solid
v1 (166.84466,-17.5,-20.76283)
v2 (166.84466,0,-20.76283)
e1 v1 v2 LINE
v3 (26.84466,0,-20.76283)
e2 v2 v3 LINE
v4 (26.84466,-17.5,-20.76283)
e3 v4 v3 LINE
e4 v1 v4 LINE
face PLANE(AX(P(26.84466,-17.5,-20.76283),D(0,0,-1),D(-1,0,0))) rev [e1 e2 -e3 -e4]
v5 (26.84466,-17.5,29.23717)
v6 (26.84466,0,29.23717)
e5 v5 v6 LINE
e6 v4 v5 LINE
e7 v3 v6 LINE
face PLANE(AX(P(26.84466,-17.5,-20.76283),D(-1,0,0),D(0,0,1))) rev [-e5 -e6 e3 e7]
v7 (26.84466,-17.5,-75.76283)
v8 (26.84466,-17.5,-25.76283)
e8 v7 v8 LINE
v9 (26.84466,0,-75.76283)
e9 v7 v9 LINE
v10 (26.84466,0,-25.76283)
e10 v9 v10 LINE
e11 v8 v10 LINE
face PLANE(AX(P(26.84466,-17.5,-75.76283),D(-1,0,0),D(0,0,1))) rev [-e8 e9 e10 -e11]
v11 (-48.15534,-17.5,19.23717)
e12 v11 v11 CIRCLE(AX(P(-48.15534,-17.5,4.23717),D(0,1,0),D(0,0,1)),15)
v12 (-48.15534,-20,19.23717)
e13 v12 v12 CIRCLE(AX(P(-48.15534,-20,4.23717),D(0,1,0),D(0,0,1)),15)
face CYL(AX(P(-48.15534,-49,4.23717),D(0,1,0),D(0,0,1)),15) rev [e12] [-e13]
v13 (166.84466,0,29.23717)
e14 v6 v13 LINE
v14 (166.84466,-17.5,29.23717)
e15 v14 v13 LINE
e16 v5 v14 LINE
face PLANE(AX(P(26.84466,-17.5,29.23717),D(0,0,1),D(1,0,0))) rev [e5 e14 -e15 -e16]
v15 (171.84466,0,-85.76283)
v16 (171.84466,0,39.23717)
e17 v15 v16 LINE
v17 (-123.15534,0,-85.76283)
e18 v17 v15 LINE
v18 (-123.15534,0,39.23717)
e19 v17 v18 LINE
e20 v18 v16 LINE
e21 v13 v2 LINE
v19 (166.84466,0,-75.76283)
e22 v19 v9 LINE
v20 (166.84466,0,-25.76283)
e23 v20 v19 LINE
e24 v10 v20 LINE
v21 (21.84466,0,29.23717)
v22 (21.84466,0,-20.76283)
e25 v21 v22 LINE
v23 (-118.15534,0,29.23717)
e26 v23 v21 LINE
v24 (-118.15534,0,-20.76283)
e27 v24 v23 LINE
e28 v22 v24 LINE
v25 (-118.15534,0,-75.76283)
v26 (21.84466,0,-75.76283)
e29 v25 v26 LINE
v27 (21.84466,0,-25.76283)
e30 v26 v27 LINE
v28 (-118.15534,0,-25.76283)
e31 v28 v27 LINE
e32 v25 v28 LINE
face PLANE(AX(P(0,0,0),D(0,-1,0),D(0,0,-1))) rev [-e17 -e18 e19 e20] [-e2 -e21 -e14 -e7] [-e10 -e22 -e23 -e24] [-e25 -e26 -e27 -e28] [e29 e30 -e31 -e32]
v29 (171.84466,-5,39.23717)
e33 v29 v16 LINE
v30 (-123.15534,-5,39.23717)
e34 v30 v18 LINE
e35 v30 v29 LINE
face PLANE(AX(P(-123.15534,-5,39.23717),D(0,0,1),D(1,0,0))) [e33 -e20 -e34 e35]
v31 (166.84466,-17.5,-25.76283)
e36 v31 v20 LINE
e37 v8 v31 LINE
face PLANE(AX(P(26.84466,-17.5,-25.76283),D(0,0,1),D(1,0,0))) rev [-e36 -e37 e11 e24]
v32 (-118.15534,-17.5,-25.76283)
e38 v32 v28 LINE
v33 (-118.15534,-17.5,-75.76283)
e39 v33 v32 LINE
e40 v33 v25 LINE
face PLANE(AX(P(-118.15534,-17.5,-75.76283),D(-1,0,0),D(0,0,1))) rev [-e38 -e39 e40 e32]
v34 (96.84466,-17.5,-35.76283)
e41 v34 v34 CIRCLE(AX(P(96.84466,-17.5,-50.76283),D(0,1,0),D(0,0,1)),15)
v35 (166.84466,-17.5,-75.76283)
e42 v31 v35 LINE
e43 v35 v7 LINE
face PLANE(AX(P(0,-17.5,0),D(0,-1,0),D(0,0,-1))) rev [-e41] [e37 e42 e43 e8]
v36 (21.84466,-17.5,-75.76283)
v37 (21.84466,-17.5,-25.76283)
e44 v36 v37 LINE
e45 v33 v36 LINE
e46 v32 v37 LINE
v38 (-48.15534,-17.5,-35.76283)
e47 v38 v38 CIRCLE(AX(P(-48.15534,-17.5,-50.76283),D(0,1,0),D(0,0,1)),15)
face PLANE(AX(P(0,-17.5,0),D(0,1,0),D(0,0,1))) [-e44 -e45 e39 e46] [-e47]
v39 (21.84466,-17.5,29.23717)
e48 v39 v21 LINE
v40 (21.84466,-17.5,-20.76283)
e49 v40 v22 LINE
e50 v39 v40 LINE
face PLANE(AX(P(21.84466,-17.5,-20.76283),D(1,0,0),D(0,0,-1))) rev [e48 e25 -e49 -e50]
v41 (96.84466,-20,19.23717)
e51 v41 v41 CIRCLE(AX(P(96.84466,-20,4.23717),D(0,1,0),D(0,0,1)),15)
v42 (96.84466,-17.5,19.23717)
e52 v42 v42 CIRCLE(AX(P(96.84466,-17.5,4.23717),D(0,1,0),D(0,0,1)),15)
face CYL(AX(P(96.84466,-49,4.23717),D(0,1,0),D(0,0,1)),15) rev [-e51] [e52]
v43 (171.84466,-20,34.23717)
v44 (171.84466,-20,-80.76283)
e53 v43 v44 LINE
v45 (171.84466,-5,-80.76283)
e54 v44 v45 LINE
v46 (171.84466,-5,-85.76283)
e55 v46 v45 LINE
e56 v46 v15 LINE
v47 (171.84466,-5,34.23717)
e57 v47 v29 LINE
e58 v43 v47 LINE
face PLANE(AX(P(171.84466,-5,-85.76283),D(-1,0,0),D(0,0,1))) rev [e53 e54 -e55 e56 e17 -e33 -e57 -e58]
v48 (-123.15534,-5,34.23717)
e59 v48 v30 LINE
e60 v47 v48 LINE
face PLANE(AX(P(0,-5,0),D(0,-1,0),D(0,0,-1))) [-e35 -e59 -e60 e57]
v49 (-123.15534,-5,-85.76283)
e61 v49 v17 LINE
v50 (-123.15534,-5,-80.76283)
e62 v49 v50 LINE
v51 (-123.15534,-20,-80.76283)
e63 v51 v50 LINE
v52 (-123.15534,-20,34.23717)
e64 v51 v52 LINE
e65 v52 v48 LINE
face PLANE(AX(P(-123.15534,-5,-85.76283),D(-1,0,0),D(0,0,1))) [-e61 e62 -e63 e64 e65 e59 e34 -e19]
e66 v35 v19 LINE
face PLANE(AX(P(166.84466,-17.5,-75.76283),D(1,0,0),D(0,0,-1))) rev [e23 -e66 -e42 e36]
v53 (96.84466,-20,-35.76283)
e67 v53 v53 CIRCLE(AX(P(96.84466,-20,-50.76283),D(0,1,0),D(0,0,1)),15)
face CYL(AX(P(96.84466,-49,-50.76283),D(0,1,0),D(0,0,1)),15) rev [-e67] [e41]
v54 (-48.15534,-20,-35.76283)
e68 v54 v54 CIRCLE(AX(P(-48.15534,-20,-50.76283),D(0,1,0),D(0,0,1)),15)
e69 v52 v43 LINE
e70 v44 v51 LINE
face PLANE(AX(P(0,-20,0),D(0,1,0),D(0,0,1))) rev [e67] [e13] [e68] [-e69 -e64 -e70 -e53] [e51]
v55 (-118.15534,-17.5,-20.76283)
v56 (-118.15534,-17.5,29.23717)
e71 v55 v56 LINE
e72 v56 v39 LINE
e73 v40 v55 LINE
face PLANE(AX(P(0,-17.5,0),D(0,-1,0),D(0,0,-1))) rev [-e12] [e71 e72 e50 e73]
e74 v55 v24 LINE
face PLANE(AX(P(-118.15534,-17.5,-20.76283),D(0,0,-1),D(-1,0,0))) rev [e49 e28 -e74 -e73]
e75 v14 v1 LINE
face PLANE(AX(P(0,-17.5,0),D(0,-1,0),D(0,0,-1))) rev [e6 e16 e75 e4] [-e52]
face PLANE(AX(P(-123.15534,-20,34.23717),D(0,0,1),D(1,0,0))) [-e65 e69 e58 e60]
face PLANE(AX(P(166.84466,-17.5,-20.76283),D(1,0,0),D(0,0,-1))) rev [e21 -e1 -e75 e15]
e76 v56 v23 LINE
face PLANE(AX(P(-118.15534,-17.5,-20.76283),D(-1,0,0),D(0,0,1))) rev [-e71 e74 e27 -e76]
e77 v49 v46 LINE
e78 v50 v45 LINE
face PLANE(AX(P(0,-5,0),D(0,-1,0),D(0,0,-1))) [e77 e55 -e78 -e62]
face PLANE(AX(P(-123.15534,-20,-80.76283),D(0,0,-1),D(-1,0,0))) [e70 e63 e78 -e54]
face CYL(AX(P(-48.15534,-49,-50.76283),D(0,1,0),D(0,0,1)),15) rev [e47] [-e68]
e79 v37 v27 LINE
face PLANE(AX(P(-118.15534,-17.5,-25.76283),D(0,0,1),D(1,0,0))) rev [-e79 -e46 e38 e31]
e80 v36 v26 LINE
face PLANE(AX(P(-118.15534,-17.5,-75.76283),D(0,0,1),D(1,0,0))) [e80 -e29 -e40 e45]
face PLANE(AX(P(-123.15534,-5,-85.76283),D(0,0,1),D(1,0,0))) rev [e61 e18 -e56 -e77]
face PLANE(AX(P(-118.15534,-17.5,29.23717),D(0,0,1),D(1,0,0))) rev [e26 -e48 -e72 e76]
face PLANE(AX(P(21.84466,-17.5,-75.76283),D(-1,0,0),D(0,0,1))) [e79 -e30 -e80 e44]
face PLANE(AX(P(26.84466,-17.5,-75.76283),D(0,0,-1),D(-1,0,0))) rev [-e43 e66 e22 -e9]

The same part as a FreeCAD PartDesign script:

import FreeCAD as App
import Part
import Sketcher

V = App.Vector
Q = App.Units.Quantity

doc = App.newDocument("Part")
body = doc.addObject("PartDesign::Body", "Body")

# Sketch on XZ plane
sketch1 = body.newObject("Sketcher::SketchObject", "Sketch")
sketch1.AttachmentSupport = (doc.getObject("XZ_Plane"), [""])
sketch1.MapMode = "FlatFace"
sketch1.addGeometry([
    Part.LineSegment(V(-123, -86, 0), V(-123, 39, 0)),
    Part.LineSegment(V(-123, 39, 0), V(172, 39, 0)),
    Part.LineSegment(V(172, 39, 0), V(172, -86, 0)),
    Part.LineSegment(V(172, -86, 0), V(-123, -86, 0)),
], False)
sketch1.addConstraint([
    Sketcher.Constraint("Coincident", 0, 2, 1, 1),
    Sketcher.Constraint("Coincident", 1, 2, 2, 1),
    Sketcher.Constraint("Coincident", 2, 2, 3, 1),
    Sketcher.Constraint("Coincident", 3, 2, 0, 1),
    Sketcher.Constraint("Vertical", 0),
    Sketcher.Constraint("Horizontal", 1),
    Sketcher.Constraint("Vertical", 2),
    Sketcher.Constraint("Horizontal", 3),
    Sketcher.Constraint("DistanceX", 1, 1, 1, 2, Q("295 mm")),
    Sketcher.Constraint("DistanceY", 0, 1, 0, 2, Q("125 mm")),
    Sketcher.Constraint("DistanceX", 0, 2, -1, 1, Q("123.15534 mm")),
    Sketcher.Constraint("DistanceY", -1, 1, 0, 2, Q("39.23717 mm")),
])
pad1 = body.newObject("PartDesign::Pad", "Pad")
pad1.Profile = sketch1
pad1.Length = 5

# Sketch on XZ plane
sketch2 = body.newObject("Sketcher::SketchObject", "Sketch001")
sketch2.AttachmentSupport = (doc.getObject("XZ_Plane"), [""])
sketch2.MapMode = "FlatFace"
sketch2.addGeometry([
    Part.LineSegment(V(-123, -81, 0), V(-123, 34, 0)),
    Part.LineSegment(V(-123, 34, 0), V(172, 34, 0)),
    Part.LineSegment(V(172, 34, 0), V(172, -81, 0)),
    Part.LineSegment(V(172, -81, 0), V(-123, -81, 0)),
], False)
sketch2.addConstraint([
    Sketcher.Constraint("Coincident", 0, 2, 1, 1),
    Sketcher.Constraint("Coincident", 1, 2, 2, 1),
    Sketcher.Constraint("Coincident", 2, 2, 3, 1),
    Sketcher.Constraint("Coincident", 3, 2, 0, 1),
    Sketcher.Constraint("Vertical", 0),
    Sketcher.Constraint("Horizontal", 1),
    Sketcher.Constraint("Vertical", 2),
    Sketcher.Constraint("Horizontal", 3),
    Sketcher.Constraint("DistanceX", 1, 1, 1, 2, Q("295 mm")),
    Sketcher.Constraint("DistanceY", 0, 1, 0, 2, Q("115 mm")),
    Sketcher.Constraint("DistanceX", 0, 2, -1, 1, Q("123.15534 mm")),
    Sketcher.Constraint("DistanceY", -1, 1, 0, 2, Q("34.23717 mm")),
])
pad2 = body.newObject("PartDesign::Pad", "Pad001")
pad2.Profile = sketch2
pad2.Length = 20

# Sketch on XZ plane
sketch3 = body.newObject("Sketcher::SketchObject", "Sketch002")
sketch3.AttachmentSupport = (doc.getObject("XZ_Plane"), [""])
sketch3.MapMode = "FlatFace"
sketch3.addGeometry([
    Part.LineSegment(V(-118, -76, 0), V(-118, -26, 0)),
    Part.LineSegment(V(-118, -26, 0), V(22, -26, 0)),
    Part.LineSegment(V(22, -26, 0), V(22, -76, 0)),
    Part.LineSegment(V(22, -76, 0), V(-118, -76, 0)),
], False)
sketch3.addConstraint([
    Sketcher.Constraint("Coincident", 0, 2, 1, 1),
    Sketcher.Constraint("Coincident", 1, 2, 2, 1),
    Sketcher.Constraint("Coincident", 2, 2, 3, 1),
    Sketcher.Constraint("Coincident", 3, 2, 0, 1),
    Sketcher.Constraint("Vertical", 0),
    Sketcher.Constraint("Horizontal", 1),
    Sketcher.Constraint("Vertical", 2),
    Sketcher.Constraint("Horizontal", 3),
    Sketcher.Constraint("DistanceX", 1, 1, 1, 2, Q("140 mm")),
    Sketcher.Constraint("DistanceY", 0, 1, 0, 2, Q("50 mm")),
    Sketcher.Constraint("DistanceX", 0, 2, -1, 1, Q("118.15534 mm")),
    Sketcher.Constraint("DistanceY", 0, 2, -1, 1, Q("25.76283 mm")),
])
pocket1 = body.newObject("PartDesign::Pocket", "Pocket")
pocket1.Profile = sketch3
pocket1.Length = 17.5
pocket1.Reversed = True

# Sketch on XZ plane
sketch4 = body.newObject("Sketcher::SketchObject", "Sketch003")
sketch4.AttachmentSupport = (doc.getObject("XZ_Plane"), [""])
sketch4.MapMode = "FlatFace"
sketch4.addGeometry([
    Part.LineSegment(V(-118, -76, 0), V(-118, -26, 0)),  # 0
    Part.LineSegment(V(-118, -26, 0), V(22, -26, 0)),  # 1
    Part.LineSegment(V(22, -26, 0), V(22, -76, 0)),  # 2
    Part.LineSegment(V(22, -76, 0), V(-118, -76, 0)),  # 3
    Part.LineSegment(V(27, -76, 0), V(27, -26, 0)),  # 4
    Part.LineSegment(V(27, -26, 0), V(167, -26, 0)),  # 5
    Part.LineSegment(V(167, -26, 0), V(167, -76, 0)),  # 6
    Part.LineSegment(V(167, -76, 0), V(27, -76, 0)),  # 7
    Part.LineSegment(V(27, -21, 0), V(27, 29, 0)),  # 8
    Part.LineSegment(V(27, 29, 0), V(167, 29, 0)),  # 9
    Part.LineSegment(V(167, 29, 0), V(167, -21, 0)),  # 10
    Part.LineSegment(V(167, -21, 0), V(27, -21, 0)),  # 11
    Part.LineSegment(V(-118, -21, 0), V(-118, 29, 0)),  # 12
    Part.LineSegment(V(-118, 29, 0), V(22, 29, 0)),  # 13
    Part.LineSegment(V(22, 29, 0), V(22, -21, 0)),  # 14
    Part.LineSegment(V(22, -21, 0), V(-118, -21, 0)),  # 15
], False)
sketch4.addConstraint([
    Sketcher.Constraint("Coincident", 0, 2, 1, 1),
    Sketcher.Constraint("Coincident", 1, 2, 2, 1),
    Sketcher.Constraint("Coincident", 2, 2, 3, 1),
    Sketcher.Constraint("Coincident", 3, 2, 0, 1),
    Sketcher.Constraint("Coincident", 4, 2, 5, 1),
    Sketcher.Constraint("Coincident", 5, 2, 6, 1),
    Sketcher.Constraint("Coincident", 6, 2, 7, 1),
    Sketcher.Constraint("Coincident", 7, 2, 4, 1),
    Sketcher.Constraint("Coincident", 8, 2, 9, 1),
    Sketcher.Constraint("Coincident", 9, 2, 10, 1),
    Sketcher.Constraint("Coincident", 10, 2, 11, 1),
    Sketcher.Constraint("Coincident", 11, 2, 8, 1),
    Sketcher.Constraint("Coincident", 12, 2, 13, 1),
    Sketcher.Constraint("Coincident", 13, 2, 14, 1),
    Sketcher.Constraint("Coincident", 14, 2, 15, 1),
    Sketcher.Constraint("Coincident", 15, 2, 12, 1),
    Sketcher.Constraint("Vertical", 0),
    Sketcher.Constraint("Horizontal", 1),
    Sketcher.Constraint("Vertical", 2),
    Sketcher.Constraint("Horizontal", 3),
    Sketcher.Constraint("Vertical", 4),
    Sketcher.Constraint("Horizontal", 5),
    Sketcher.Constraint("Vertical", 6),
    Sketcher.Constraint("Horizontal", 7),
    Sketcher.Constraint("Vertical", 8),
    Sketcher.Constraint("Horizontal", 9),
    Sketcher.Constraint("Vertical", 10),
    Sketcher.Constraint("Horizontal", 11),
    Sketcher.Constraint("Vertical", 12),
    Sketcher.Constraint("Horizontal", 13),
    Sketcher.Constraint("Vertical", 14),
    Sketcher.Constraint("Horizontal", 15),
    Sketcher.Constraint("Horizontal", 1, 2, 4, 2),
    Sketcher.Constraint("Horizontal", 3, 2, 6, 2),
    Sketcher.Constraint("Horizontal", 9, 2, 12, 2),
    Sketcher.Constraint("Horizontal", 11, 2, 14, 2),
    Sketcher.Constraint("Vertical", 7, 2, 8, 2),
    Sketcher.Constraint("Vertical", 6, 2, 9, 2),
    Sketcher.Constraint("Vertical", 3, 2, 12, 2),
    Sketcher.Constraint("Vertical", 2, 2, 13, 2),
    Sketcher.Constraint("Equal", 3, 5),
    Sketcher.Constraint("Equal", 6, 8),
    Sketcher.Constraint("DistanceX", 1, 1, 1, 2, Q("140 mm")),
    Sketcher.Constraint("DistanceY", 0, 1, 0, 2, Q("50 mm")),
    Sketcher.Constraint("DistanceX", 1, 2, 4, 2, Q("5 mm")),
    Sketcher.Constraint("DistanceY", 4, 2, 8, 2, Q("55 mm")),
    Sketcher.Constraint("DistanceX", 0, 2, -1, 1, Q("118.15534 mm")),
    Sketcher.Constraint("DistanceY", 0, 2, -1, 1, Q("25.76283 mm")),
])
pocket2 = body.newObject("PartDesign::Pocket", "Pocket001")
pocket2.Profile = sketch4
pocket2.Length = 17.5
pocket2.Reversed = True

# Sketch on XZ plane
sketch5 = body.newObject("Sketcher::SketchObject", "Sketch004")
sketch5.AttachmentSupport = (doc.getObject("XZ_Plane"), [""])
sketch5.MapMode = "FlatFace"
sketch5.AttachmentOffset = App.Placement(V(0, 0, 17.5), App.Rotation())
sketch5.addGeometry([
    Part.Circle(V(-48, 4, 0), V(0, 0, 1), 15),
    Part.Circle(V(97, 4, 0), V(0, 0, 1), 15),
    Part.Circle(V(97, -51, 0), V(0, 0, 1), 15),
    Part.Circle(V(-48, -51, 0), V(0, 0, 1), 15),
], False)
sketch5.addConstraint([
    Sketcher.Constraint("Equal", 0, 1),
    Sketcher.Constraint("Equal", 1, 2),
    Sketcher.Constraint("Equal", 2, 3),
    Sketcher.Constraint("Horizontal", 0, 3, 1, 3),
    Sketcher.Constraint("Horizontal", 2, 3, 3, 3),
    Sketcher.Constraint("Vertical", 1, 3, 2, 3),
    Sketcher.Constraint("Vertical", 0, 3, 3, 3),
    Sketcher.Constraint("Diameter", 0, Q("30 mm")),
    Sketcher.Constraint("DistanceX", 0, 3, 1, 3, Q("145 mm")),
    Sketcher.Constraint("DistanceY", 2, 3, 1, 3, Q("55 mm")),
    Sketcher.Constraint("DistanceX", 0, 3, -1, 1, Q("48.15534 mm")),
    Sketcher.Constraint("DistanceY", -1, 1, 0, 3, Q("4.23717 mm")),
])
pocket3 = body.newObject("PartDesign::Pocket", "Pocket002")
pocket3.Profile = sketch5
pocket3.Length = 31.5
pocket3.Reversed = True

doc.recompute()
